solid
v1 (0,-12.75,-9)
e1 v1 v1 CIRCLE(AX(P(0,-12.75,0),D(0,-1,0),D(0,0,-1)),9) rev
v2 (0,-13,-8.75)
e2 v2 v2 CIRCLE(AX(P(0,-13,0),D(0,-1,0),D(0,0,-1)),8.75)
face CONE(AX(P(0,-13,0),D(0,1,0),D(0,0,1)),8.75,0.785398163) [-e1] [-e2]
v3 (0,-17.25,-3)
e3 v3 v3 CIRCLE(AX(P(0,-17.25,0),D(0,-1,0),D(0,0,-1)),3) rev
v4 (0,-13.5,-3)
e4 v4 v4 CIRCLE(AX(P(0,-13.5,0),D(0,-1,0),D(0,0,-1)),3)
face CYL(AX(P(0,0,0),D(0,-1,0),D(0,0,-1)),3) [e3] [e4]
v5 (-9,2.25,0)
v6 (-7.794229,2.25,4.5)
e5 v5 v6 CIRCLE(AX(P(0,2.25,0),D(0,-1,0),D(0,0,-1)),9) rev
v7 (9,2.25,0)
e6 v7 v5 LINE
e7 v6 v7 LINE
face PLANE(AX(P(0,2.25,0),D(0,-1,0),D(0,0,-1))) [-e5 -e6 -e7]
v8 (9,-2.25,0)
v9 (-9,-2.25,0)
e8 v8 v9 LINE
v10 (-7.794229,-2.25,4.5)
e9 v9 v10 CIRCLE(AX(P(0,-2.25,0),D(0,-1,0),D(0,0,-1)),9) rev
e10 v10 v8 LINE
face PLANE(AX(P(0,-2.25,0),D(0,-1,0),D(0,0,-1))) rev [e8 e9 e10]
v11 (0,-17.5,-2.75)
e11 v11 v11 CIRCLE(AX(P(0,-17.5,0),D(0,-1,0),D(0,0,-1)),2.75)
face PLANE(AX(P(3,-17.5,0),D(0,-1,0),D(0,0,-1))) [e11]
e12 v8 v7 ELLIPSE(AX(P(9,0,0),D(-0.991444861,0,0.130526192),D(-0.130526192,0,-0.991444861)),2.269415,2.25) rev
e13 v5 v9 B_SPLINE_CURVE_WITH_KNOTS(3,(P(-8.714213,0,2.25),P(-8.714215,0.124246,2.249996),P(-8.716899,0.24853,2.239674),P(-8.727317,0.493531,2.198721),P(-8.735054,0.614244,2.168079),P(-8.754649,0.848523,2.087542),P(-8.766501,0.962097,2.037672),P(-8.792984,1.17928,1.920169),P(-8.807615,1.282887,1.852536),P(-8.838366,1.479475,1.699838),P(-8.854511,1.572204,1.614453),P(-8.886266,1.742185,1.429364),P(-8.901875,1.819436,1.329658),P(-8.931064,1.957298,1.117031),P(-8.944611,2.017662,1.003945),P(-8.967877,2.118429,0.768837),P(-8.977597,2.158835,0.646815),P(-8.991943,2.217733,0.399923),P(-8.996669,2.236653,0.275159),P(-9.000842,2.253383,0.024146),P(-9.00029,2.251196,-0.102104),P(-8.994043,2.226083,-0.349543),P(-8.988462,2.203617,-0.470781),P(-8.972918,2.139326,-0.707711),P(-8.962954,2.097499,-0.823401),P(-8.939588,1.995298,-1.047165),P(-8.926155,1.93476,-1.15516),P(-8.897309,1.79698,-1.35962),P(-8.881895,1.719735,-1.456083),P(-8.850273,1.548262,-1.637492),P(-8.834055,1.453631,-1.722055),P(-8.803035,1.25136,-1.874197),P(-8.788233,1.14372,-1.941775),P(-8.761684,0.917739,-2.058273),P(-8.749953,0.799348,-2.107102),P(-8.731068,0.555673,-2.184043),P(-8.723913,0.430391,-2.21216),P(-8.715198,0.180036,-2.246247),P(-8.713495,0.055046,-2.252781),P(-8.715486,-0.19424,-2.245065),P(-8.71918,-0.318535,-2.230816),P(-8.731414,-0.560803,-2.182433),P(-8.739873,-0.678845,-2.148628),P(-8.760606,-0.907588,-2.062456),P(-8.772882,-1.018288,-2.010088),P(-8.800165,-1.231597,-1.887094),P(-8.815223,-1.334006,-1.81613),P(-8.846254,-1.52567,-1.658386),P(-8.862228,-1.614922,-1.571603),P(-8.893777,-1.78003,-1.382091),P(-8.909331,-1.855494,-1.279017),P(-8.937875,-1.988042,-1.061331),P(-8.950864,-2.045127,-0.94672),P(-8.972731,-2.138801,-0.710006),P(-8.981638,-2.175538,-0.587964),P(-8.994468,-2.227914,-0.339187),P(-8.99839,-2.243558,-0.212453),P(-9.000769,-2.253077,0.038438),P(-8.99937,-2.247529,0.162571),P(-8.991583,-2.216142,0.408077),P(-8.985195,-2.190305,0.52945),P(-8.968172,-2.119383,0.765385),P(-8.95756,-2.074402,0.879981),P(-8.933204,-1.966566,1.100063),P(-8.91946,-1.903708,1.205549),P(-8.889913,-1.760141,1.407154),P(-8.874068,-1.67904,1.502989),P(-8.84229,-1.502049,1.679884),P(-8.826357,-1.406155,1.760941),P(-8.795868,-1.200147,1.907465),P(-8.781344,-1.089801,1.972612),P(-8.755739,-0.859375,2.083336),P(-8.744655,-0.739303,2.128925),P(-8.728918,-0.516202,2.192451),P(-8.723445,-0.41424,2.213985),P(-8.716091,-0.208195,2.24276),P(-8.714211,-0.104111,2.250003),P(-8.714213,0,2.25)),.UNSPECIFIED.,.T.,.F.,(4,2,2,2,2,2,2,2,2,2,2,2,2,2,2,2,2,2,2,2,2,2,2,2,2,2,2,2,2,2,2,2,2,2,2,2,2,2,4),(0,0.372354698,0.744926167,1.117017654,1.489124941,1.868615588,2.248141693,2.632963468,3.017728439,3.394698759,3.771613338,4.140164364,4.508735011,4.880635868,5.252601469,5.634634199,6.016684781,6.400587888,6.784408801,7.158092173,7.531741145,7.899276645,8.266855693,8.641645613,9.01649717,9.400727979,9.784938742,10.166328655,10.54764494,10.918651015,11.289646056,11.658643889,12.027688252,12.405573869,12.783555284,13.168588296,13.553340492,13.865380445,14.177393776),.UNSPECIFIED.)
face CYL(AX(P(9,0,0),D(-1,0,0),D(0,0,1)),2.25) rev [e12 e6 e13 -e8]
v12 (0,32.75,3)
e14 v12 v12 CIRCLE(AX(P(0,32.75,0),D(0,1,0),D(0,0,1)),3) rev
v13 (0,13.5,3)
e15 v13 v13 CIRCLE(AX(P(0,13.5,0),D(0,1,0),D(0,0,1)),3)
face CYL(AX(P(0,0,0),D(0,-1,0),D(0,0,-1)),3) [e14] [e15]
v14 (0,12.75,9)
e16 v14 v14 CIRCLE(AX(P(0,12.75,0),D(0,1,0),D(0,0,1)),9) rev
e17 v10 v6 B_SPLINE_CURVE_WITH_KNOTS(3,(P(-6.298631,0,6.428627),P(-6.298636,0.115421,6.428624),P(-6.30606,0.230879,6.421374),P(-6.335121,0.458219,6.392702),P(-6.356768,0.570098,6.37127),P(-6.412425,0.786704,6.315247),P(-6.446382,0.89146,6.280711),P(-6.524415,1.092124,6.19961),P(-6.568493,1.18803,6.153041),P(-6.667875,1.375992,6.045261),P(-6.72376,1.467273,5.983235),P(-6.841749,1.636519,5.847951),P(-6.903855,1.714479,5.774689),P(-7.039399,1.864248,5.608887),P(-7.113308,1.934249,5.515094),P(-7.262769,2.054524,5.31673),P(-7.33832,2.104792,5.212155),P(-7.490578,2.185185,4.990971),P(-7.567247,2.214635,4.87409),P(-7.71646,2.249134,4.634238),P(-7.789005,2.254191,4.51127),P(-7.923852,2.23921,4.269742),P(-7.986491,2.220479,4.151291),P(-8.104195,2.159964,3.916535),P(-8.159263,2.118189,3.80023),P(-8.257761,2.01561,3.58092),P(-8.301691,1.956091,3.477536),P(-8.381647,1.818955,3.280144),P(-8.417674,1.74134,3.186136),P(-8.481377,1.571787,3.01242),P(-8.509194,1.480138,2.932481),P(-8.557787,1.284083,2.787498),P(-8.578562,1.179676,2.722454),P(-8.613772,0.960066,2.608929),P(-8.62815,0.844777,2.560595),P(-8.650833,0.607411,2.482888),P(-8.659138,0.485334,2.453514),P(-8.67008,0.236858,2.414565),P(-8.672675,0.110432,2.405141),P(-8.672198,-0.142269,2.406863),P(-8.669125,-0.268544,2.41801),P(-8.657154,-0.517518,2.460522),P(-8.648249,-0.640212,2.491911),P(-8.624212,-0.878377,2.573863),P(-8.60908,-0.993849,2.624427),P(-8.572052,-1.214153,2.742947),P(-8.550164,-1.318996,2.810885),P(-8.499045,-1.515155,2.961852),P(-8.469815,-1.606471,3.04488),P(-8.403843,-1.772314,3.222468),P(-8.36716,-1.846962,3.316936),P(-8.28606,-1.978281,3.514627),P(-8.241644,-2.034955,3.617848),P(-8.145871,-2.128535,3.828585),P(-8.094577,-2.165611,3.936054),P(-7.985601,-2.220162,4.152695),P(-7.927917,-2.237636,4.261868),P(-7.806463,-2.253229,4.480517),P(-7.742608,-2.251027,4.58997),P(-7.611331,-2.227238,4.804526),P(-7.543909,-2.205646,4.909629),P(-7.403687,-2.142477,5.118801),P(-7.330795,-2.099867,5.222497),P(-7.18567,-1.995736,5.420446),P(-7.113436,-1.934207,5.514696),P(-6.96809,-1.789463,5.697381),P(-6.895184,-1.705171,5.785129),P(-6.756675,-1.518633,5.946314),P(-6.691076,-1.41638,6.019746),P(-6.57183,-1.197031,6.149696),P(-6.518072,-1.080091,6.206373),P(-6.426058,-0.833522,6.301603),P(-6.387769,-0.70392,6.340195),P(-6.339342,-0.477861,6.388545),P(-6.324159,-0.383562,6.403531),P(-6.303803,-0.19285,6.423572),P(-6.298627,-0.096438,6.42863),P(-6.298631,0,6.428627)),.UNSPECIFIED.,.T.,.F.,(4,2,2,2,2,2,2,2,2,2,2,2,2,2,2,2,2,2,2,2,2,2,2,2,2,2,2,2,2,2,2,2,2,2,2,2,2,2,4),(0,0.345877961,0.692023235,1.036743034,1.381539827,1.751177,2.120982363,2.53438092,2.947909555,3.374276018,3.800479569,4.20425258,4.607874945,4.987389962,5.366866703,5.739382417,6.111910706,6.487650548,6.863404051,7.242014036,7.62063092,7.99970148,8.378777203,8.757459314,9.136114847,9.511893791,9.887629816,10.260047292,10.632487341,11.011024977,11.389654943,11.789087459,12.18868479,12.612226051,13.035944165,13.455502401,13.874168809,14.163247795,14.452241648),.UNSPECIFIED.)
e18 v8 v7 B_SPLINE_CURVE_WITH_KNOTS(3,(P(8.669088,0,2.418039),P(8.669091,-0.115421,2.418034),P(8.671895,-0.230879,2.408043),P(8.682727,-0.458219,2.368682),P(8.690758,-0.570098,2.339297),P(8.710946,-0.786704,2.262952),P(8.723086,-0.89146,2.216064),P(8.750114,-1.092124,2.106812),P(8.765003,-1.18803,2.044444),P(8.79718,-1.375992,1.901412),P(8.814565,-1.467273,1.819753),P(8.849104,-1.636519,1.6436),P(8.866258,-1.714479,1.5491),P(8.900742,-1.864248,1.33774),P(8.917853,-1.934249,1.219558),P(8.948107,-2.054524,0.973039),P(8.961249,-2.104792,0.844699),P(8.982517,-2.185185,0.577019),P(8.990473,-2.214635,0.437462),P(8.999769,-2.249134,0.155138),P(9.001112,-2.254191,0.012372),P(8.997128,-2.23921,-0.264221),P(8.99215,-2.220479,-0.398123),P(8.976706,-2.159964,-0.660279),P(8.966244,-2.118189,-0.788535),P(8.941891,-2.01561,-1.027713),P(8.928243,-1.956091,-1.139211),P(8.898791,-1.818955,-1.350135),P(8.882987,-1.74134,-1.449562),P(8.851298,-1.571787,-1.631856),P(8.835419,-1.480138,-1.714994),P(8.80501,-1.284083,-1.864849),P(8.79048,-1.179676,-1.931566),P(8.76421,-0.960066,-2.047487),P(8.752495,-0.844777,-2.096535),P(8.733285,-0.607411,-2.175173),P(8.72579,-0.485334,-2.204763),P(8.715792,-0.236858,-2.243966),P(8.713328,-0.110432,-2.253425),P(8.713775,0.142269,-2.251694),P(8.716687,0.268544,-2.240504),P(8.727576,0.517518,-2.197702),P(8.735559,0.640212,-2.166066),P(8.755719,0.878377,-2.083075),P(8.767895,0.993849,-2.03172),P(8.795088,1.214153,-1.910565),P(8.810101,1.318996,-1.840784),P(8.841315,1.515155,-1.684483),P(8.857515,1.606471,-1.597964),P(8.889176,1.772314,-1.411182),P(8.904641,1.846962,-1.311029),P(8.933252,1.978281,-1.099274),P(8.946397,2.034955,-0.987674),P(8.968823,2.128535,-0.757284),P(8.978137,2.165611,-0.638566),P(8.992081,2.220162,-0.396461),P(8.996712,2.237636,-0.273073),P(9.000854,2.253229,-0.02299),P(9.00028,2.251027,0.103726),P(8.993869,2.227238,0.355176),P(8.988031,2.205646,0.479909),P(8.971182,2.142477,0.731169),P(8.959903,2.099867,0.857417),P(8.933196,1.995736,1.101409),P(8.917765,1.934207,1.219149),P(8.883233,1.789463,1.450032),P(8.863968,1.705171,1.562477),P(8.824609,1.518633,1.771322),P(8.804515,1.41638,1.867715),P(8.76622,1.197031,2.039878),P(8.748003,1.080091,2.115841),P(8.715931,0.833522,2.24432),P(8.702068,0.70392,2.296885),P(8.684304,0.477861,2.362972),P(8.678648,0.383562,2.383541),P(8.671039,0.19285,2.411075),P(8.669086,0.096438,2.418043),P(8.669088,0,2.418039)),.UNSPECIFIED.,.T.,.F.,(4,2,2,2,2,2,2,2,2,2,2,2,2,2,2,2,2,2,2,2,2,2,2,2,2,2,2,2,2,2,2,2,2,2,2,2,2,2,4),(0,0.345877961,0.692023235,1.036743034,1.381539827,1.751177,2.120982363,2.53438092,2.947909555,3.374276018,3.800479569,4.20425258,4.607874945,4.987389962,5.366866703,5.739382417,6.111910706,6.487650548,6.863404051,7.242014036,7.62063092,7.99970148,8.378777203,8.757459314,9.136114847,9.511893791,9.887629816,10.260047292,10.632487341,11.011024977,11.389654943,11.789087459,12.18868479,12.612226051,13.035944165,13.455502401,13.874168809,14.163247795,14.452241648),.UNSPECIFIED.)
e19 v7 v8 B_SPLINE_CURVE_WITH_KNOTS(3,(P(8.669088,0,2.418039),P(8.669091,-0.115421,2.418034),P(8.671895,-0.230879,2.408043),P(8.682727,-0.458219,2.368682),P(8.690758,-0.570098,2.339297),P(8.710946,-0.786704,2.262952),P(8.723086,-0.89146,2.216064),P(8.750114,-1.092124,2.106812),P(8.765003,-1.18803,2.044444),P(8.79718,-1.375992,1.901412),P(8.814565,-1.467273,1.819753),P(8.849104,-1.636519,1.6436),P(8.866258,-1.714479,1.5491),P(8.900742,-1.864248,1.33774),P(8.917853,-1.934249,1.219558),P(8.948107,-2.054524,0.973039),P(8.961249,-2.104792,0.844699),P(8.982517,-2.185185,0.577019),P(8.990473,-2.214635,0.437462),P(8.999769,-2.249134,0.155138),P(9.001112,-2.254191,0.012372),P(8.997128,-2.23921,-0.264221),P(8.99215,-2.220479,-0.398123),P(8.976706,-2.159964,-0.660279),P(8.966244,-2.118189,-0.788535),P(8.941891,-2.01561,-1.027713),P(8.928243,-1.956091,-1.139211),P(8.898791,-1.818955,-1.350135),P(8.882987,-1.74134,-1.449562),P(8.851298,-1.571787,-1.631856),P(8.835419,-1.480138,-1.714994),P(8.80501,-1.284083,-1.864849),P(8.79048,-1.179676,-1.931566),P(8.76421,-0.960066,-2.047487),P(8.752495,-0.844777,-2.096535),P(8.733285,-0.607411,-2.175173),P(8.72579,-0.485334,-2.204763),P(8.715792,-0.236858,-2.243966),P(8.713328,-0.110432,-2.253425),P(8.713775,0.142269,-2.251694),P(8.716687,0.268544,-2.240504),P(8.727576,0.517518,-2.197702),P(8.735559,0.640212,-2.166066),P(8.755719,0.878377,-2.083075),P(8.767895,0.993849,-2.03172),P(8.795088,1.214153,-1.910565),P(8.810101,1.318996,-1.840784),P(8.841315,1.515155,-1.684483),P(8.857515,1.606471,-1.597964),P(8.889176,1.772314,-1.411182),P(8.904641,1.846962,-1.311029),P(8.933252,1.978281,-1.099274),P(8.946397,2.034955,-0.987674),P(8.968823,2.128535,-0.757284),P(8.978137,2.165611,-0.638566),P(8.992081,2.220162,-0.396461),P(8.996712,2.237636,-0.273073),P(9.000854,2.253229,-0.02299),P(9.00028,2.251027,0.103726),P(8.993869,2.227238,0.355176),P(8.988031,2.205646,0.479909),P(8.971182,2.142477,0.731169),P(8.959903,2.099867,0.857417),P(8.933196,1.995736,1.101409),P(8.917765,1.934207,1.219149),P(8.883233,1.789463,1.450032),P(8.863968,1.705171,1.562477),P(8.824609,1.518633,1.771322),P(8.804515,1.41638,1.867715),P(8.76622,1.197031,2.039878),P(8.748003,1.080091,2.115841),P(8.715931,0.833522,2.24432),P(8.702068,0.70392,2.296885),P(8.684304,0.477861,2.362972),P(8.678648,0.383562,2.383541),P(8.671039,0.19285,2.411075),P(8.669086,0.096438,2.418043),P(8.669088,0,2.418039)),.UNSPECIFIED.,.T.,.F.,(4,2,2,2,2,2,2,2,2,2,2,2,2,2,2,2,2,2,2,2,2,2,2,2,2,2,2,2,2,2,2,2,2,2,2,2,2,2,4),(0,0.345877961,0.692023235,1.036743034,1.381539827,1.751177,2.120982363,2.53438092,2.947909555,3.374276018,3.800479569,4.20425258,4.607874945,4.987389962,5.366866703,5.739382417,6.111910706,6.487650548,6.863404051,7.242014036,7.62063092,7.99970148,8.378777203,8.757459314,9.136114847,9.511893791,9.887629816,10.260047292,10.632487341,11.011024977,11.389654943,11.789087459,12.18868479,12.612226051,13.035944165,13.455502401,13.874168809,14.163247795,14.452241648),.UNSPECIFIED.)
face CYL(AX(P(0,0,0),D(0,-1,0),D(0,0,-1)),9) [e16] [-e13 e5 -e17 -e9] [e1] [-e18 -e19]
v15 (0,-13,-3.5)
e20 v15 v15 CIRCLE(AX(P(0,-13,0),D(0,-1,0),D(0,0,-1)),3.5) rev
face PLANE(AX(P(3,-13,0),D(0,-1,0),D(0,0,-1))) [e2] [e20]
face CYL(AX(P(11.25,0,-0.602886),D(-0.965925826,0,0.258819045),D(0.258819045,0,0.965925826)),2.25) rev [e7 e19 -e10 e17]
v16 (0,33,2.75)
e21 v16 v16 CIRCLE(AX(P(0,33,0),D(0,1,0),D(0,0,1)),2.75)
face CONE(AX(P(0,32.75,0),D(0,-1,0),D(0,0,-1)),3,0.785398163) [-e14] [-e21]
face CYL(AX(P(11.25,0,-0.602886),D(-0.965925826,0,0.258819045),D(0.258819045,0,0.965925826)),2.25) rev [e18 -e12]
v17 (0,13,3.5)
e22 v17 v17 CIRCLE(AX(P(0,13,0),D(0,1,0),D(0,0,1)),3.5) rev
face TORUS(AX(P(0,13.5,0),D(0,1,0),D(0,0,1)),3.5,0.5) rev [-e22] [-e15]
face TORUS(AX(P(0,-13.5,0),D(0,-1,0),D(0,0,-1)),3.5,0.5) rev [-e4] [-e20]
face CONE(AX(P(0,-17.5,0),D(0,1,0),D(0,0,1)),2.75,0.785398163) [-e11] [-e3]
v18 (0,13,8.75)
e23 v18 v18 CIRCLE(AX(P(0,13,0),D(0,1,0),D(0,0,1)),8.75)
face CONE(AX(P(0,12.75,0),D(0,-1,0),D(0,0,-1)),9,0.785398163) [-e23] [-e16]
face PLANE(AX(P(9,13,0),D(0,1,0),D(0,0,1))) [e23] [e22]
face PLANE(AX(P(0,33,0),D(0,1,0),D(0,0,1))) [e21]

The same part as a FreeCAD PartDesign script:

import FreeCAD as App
import Part
import Sketcher

V = App.Vector
Q = App.Units.Quantity


def edges_at(feature, points):
    """Names of the edges that pass closest to the given points."""
    edges = feature.Shape.Edges
    near = lambda p: min(range(len(edges)), key=lambda i: edges[i].distToShape(Part.Vertex(*p))[0])
    return sorted({f"Edge{near(p) + 1}" for p in points})


def add_polygon(sketch, points):
    """Adds a closed chain of lines whose ends are joined by coincident constraints."""
    first, n = sketch.GeometryCount, len(points)
    for a, b in zip(points, points[1:] + points[:1]):
        sketch.addGeometry(Part.LineSegment(App.Vector(*a, 0), App.Vector(*b, 0)), False)
    for i in range(n):
        sketch.addConstraint(Sketcher.Constraint("Coincident", first + i, 2, first + (i + 1) % n, 1))

doc = App.newDocument("Part")
params = doc.addObject("Spreadsheet::Sheet", "Params")
for row, (alias, value) in enumerate([
    ("sketch1_width", "3 mm"),
    ("sketch1_width2", "6 mm"),
    ("sketch1_height", "26 mm"),
    ("sketch1_height2", "20 mm"),
    ("sketch1_height3", "50.5 mm"),
    ("revolution_angle", "360 deg"),
    ("sketch2_diameter", "4.5 mm"),
    ("sketch3_diameter", "4.5 mm"),
    ("pocket3_length", "4.5 mm"),
    ("fillet_radius", "0.5 mm"),
    ("chamfer_size", "0.25 mm"),
    ("chamfer2_size", "0.25 mm"),
], start=1):
    params.set(f"A{row}", alias)
    params.set(f"B{row}", "=" + value)
    params.setAlias(f"B{row}", alias)

body = doc.addObject("PartDesign::Body", "Body")

sketch1 = doc.addObject("Sketcher::SketchObject", "Sketch")
body.addObject(sketch1)
sketch1.AttachmentSupport = (doc.XY_Plane, [""])
sketch1.MapMode = "FlatFace"
add_polygon(sketch1, [(3, 33), (0, 33), (0, -17.5), (3, -17.5), (3, -13), (9, -13), (9, 13), (3, 13)])
sketch1.addConstraint([
    Sketcher.Constraint("Horizontal", 0),
    Sketcher.Constraint("Vertical", 1),
    Sketcher.Constraint("Horizontal", 2),
    Sketcher.Constraint("Vertical", 3),
    Sketcher.Constraint("Horizontal", 4),
    Sketcher.Constraint("Vertical", 5),
    Sketcher.Constraint("Horizontal", 6),
    Sketcher.Constraint("Vertical", 7),
    Sketcher.Constraint("Symmetric", 3, 2, 6, 2, -1),
    Sketcher.Constraint("PointOnObject", 0, 2, -2),
    Sketcher.Constraint("DistanceX", 0, 2, 0, 1, Q("3 mm")),
    Sketcher.Constraint("DistanceX", 4, 1, 4, 2, Q("6 mm")),
    Sketcher.Constraint("DistanceY", 5, 1, 5, 2, Q("26 mm")),
    Sketcher.Constraint("DistanceY", 7, 1, 7, 2, Q("20 mm")),
    Sketcher.Constraint("DistanceY", 1, 2, 1, 1, Q("50.5 mm")),
])
sketch1.setExpression("Constraints[18]", "Params.sketch1_width")
sketch1.setExpression("Constraints[19]", "Params.sketch1_width2")
sketch1.setExpression("Constraints[20]", "Params.sketch1_height")
sketch1.setExpression("Constraints[21]", "Params.sketch1_height2")
sketch1.setExpression("Constraints[22]", "Params.sketch1_height3")
revolution = doc.addObject("PartDesign::Revolution", "Revolution")
body.addObject(revolution)
revolution.Profile = sketch1
revolution.ReferenceAxis = (sketch1, ["V_Axis"])
revolution.setExpression("Angle", "Params.revolution_angle")

sketch2 = doc.addObject("Sketcher::SketchObject", "Sketch001")
body.addObject(sketch2)
sketch2.AttachmentSupport = (doc.YZ_Plane, [""])
sketch2.MapMode = "FlatFace"
sketch2.AttachmentOffset = App.Placement(V(0, 0, -9), App.Rotation())
sketch2.addGeometry(Part.Circle(V(0, 0, 0), V(0, 0, 1), 2.2), False)
sketch2.addConstraint([
    Sketcher.Constraint("Coincident", 0, 3, -1, 1),
    Sketcher.Constraint("Diameter", 0, Q("4.5 mm")),
])
sketch2.setExpression("Constraints[1]", "Params.sketch2_diameter")
pocket1 = doc.addObject("PartDesign::Pocket", "Pocket")
body.addObject(pocket1)
pocket1.Profile = sketch2
pocket1.Type = "ThroughAll"
pocket1.Reversed = True

sketch3 = doc.addObject("Sketcher::SketchObject", "Sketch002")
body.addObject(sketch3)
sketch3.Placement = App.Placement(V(-7.794229, 0, 4.5), App.Rotation(V(0.258819045, 0, 0.965925826), V(0, 0.999999999, 0), V(-0.965925826, 0, 0.258819045), "ZXY"))
sketch3.addGeometry(Part.Circle(V(0, 0, 0), V(0, 0, 1), 2.2), False)
sketch3.addConstraint([
    Sketcher.Constraint("Coincident", 0, 3, -1, 1),
    Sketcher.Constraint("Diameter", 0, Q("4.5 mm")),
])
sketch3.setExpression("Constraints[1]", "Params.sketch3_diameter")
pocket2 = doc.addObject("PartDesign::Pocket", "Pocket001")
body.addObject(pocket2)
pocket2.Profile = sketch3
pocket2.Type = "ThroughAll"
pocket2.Midplane = True

sketch4 = doc.addObject("Sketcher::SketchObject", "Sketch003")
body.addObject(sketch4)
sketch4.AttachmentSupport = (doc.XZ_Plane, [""])
sketch4.MapMode = "FlatFace"
add_polygon(sketch4, [(9, 0), (-11, 0), (-10, 5)])
sketch4.addConstraint([
    Sketcher.Constraint("Horizontal", 0),
    Sketcher.Constraint("PointOnObject", 0, 2, -1),
    Sketcher.Constraint("Angle", 2, Q("-15 deg")),
    Sketcher.Constraint("DistanceX", -1, 1, 2, 2, Q("9 mm")),
    Sketcher.Constraint("DistanceX", 0, 2, 0, 1, Q("19.844388 mm")),
    Sketcher.Constraint("DistanceX", 1, 2, -1, 1, Q("10.428761 mm")),
])
pocket3 = doc.addObject("PartDesign::Pocket", "Pocket002")
body.addObject(pocket3)
pocket3.Profile = sketch4
pocket3.setExpression("Length", "Params.pocket3_length")
pocket3.Midplane = True
doc.recompute()

fillet = doc.addObject("PartDesign::Fillet", "Fillet")
body.addObject(fillet)
fillet.Base = (pocket3, edges_at(pocket3, [(-3, -13, 0), (-3, 13, 0)]))
fillet.setExpression("Radius", "Params.fillet_radius")
doc.recompute()

chamfer = doc.addObject("PartDesign::Chamfer", "Chamfer")
body.addObject(chamfer)
chamfer.Base = (fillet, edges_at(fillet, [(-3, -17.5, 0), (-3, 33, 0)]))
chamfer.setExpression("Size", "Params.chamfer_size")
doc.recompute()

chamfer2 = doc.addObject("PartDesign::Chamfer", "Chamfer001")
body.addObject(chamfer2)
chamfer2.Base = (chamfer, edges_at(chamfer, [(-9, -13, 0), (-9, 13, 0)]))
chamfer2.setExpression("Size", "Params.chamfer2_size")

doc.recompute()
